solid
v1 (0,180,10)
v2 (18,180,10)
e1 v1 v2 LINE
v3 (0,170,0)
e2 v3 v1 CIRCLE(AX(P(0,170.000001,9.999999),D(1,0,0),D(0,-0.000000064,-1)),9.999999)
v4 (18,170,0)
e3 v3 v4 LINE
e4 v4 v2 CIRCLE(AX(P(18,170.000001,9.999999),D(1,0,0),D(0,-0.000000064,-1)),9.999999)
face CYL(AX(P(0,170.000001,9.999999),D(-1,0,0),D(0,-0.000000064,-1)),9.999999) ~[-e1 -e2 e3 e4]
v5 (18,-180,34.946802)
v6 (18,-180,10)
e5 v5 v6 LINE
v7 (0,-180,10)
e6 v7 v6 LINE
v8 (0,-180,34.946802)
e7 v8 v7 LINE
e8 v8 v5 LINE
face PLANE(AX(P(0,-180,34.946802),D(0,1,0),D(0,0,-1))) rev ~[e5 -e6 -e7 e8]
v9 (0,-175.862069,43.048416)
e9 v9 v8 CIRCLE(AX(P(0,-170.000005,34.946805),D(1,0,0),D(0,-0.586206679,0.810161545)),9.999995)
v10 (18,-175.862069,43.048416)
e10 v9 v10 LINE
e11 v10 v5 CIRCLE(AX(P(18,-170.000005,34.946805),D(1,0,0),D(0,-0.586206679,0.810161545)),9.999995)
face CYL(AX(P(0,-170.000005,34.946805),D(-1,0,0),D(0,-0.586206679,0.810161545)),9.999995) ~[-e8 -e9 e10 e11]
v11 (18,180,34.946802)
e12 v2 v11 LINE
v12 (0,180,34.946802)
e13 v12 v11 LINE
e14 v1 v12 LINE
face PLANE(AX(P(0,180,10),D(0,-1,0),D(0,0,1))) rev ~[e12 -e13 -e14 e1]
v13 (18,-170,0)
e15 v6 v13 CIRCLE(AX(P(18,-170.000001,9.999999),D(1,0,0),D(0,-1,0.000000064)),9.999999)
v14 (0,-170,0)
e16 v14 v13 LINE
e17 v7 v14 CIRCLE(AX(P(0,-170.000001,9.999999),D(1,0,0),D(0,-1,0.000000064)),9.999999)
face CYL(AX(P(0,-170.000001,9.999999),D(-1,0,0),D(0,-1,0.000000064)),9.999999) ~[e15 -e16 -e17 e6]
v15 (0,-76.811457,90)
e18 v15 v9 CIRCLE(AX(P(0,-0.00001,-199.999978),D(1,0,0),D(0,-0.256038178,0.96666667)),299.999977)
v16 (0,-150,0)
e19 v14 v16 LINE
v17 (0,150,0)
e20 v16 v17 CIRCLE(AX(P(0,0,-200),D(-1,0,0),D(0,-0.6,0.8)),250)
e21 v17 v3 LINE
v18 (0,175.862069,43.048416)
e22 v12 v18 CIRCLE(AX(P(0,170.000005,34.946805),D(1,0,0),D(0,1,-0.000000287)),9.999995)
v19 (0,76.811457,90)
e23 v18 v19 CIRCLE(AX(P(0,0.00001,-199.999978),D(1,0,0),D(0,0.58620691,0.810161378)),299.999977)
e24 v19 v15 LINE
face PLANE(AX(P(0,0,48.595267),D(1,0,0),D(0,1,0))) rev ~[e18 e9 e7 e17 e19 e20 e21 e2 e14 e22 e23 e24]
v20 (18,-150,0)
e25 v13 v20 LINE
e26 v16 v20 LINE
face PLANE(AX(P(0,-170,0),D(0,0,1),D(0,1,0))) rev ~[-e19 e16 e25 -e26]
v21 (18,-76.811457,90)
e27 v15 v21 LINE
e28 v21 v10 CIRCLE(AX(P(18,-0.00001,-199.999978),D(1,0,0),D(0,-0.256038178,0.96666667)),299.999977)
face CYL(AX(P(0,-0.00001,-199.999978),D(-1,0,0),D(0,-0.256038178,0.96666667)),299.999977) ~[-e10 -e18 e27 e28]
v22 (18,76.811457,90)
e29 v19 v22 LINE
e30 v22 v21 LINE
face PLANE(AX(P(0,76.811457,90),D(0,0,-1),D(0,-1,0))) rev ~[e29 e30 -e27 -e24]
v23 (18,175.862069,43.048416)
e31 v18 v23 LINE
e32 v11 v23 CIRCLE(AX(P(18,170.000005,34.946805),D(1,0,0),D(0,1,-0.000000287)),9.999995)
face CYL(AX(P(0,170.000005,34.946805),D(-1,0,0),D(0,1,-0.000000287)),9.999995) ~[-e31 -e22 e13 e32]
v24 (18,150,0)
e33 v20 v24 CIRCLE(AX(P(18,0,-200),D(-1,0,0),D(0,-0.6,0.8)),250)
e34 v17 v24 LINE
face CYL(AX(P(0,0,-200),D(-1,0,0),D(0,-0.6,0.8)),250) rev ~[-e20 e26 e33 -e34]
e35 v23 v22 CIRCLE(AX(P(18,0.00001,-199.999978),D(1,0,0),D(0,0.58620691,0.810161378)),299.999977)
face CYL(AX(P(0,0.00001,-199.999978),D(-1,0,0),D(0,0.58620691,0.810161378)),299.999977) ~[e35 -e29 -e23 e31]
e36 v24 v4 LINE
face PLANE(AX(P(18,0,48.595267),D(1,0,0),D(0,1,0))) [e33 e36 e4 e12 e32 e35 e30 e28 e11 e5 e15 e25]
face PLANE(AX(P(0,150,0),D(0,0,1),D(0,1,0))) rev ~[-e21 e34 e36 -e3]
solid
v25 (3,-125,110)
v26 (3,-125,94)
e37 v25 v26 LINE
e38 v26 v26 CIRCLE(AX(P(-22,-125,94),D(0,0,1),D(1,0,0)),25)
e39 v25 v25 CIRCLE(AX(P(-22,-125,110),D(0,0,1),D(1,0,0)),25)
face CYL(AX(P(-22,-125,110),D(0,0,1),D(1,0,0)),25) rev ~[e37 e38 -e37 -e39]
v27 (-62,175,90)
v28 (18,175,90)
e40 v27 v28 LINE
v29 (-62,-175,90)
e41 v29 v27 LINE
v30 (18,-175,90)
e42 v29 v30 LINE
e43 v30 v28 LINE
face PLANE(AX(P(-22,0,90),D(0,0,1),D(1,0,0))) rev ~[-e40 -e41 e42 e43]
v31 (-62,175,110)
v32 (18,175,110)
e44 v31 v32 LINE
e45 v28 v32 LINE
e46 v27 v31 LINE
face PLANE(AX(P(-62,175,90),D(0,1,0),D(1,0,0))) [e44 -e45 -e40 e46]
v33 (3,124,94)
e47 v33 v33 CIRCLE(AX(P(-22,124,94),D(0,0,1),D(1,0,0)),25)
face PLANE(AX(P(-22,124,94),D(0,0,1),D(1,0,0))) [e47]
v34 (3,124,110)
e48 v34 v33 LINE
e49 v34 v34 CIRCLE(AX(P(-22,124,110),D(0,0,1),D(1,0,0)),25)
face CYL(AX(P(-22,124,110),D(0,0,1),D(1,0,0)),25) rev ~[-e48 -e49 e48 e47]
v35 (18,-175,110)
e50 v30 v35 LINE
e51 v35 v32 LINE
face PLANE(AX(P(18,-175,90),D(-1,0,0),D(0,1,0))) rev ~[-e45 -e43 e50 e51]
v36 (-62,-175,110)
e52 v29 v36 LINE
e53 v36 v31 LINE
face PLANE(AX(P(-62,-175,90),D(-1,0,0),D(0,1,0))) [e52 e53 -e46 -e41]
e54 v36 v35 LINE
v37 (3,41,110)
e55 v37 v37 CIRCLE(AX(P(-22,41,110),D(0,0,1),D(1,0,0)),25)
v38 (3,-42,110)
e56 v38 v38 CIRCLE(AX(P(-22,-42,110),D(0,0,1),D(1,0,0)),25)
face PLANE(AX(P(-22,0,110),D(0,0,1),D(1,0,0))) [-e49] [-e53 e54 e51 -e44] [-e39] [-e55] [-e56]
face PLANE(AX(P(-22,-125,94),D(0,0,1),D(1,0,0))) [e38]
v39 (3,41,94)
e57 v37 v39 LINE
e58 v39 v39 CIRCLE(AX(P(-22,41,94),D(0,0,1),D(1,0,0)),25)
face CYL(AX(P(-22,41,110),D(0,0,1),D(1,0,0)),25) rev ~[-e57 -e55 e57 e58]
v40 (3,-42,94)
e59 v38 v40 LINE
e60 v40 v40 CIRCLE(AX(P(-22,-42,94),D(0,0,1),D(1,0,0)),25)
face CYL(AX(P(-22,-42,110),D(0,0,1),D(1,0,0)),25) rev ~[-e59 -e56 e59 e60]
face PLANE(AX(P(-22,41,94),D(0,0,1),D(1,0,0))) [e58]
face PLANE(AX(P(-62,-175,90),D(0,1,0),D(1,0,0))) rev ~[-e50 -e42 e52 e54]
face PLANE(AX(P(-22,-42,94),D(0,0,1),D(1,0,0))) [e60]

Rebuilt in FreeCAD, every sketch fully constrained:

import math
import FreeCAD as App
import Part
import Sketcher
from FreeCAD import Vector

doc = App.newDocument("Part")
body = doc.addObject("PartDesign::Body", "Body")

# Sketch on YZ plane
sketch1 = body.newObject("Sketcher::SketchObject", "Sketch")
sketch1.AttachmentSupport = (doc.getObject("YZ_Plane"), [""])
sketch1.MapMode = "FlatFace"
sketch1.addGeometry([
    Part.ArcOfCircle(Part.Circle(Vector(0, -200, 0), Vector(0, 0, 1), 250), math.radians(53.130102), math.radians(126.869898)),  # 0
    Part.LineSegment(Vector(150, 0, 0), Vector(170, 0, 0)),  # 1
    Part.ArcOfCircle(Part.Circle(Vector(170.000001, 9.999999, 0), Vector(0, 0, 1), 9.999999), math.radians(-90.000004), math.radians(0.000004)),  # 2
    Part.LineSegment(Vector(180, 10, 0), Vector(180, 34.946802, 0)),  # 3
    Part.ArcOfCircle(Part.Circle(Vector(170.000005, 34.946805, 0), Vector(0, 0, 1), 9.999995), math.radians(-0.000016), math.radians(54.111718)),  # 4
    Part.ArcOfCircle(Part.Circle(Vector(0.00001, -199.999978, 0), Vector(0, 0, 1), 299.999977), math.radians(54.111701), math.radians(75.164889)),  # 5
    Part.LineSegment(Vector(76.811457, 90, 0), Vector(-76.811457, 90, 0)),  # 6
    Part.ArcOfCircle(Part.Circle(Vector(-0.00001, -199.999978, 0), Vector(0, 0, 1), 299.999977), math.radians(104.835111), math.radians(125.888299)),  # 7
    Part.ArcOfCircle(Part.Circle(Vector(-170.000005, 34.946805, 0), Vector(0, 0, 1), 9.999995), math.radians(125.888282), math.radians(180.000016)),  # 8
    Part.LineSegment(Vector(-180, 34.946802, 0), Vector(-180, 10, 0)),  # 9
    Part.ArcOfCircle(Part.Circle(Vector(-170.000001, 9.999999, 0), Vector(0, 0, 1), 9.999999), math.radians(179.999996), math.radians(270.000004)),  # 10
    Part.LineSegment(Vector(-170, 0, 0), Vector(-150, 0, 0)),  # 11
], False)
sketch1.addConstraint([
    Sketcher.Constraint("Coincident", 0, 1, 1, 1),
    Sketcher.Constraint("Tangent", 1, 2, 2, 1),
    Sketcher.Constraint("Tangent", 2, 2, 3, 1),
    Sketcher.Constraint("Tangent", 3, 2, 4, 1),
    Sketcher.Constraint("Tangent", 4, 2, 5, 1),
    Sketcher.Constraint("Coincident", 5, 2, 6, 1),
    Sketcher.Constraint("Coincident", 6, 2, 7, 1),
    Sketcher.Constraint("Tangent", 7, 2, 8, 1),
    Sketcher.Constraint("Tangent", 8, 2, 9, 1),
    Sketcher.Constraint("Tangent", 9, 2, 10, 1),
    Sketcher.Constraint("Tangent", 10, 2, 11, 1),
    Sketcher.Constraint("Coincident", 11, 2, 0, 2),
    Sketcher.Constraint("Horizontal", 1),
    Sketcher.Constraint("Vertical", 3),
    Sketcher.Constraint("Horizontal", 6),
    Sketcher.Constraint("Vertical", 9),
    Sketcher.Constraint("Horizontal", 11),
    Sketcher.Constraint("Equal", 5, 7),
    Sketcher.Constraint("Equal", 4, 8),
    Sketcher.Constraint("Equal", 2, 10),
    Sketcher.Constraint("Symmetric", 1, 2, 10, 2, -1, 1),
    Sketcher.Constraint("Symmetric", 5, 3, 7, 3, -2),
    Sketcher.Constraint("Symmetric", 0, 1, 11, 2, -2),
    Sketcher.Constraint("Radius", 0, 250.0),
    Sketcher.Constraint("Radius", 2, 9.999999),
    Sketcher.Constraint("DistanceX", 1, 1, 1, 2, 20.0),
    Sketcher.Constraint("DistanceY", 0, 3, -1, 1, 200.0),
    Sketcher.Constraint("DistanceY", -1, 1, 5, 2, 90.0),
    Sketcher.Constraint("DistanceY", 3, 1, 3, 2, 24.946802),
    Sketcher.Constraint("Radius", 4, 9.999995),
    Sketcher.Constraint("Radius", 5, 299.999977),
    Sketcher.Constraint("DistanceX", 6, 2, 6, 1, 153.622914),
])
pad1 = body.newObject("PartDesign::Pad", "Pad")
pad1.Profile = sketch1
pad1.Length = 18
body2 = doc.addObject("PartDesign::Body", "Body001")

# Sketch on XY plane
sketch2 = body2.newObject("Sketcher::SketchObject", "Sketch001")
sketch2.AttachmentSupport = (doc.getObject("XY_Plane001"), [""])
sketch2.MapMode = "FlatFace"
sketch2.AttachmentOffset = App.Placement(Vector(0, 0, 90), App.Rotation())
sketch2.addGeometry([
    Part.LineSegment(Vector(-62, 175, 0), Vector(-62, -175, 0)),
    Part.LineSegment(Vector(-62, -175, 0), Vector(18, -175, 0)),
    Part.LineSegment(Vector(18, -175, 0), Vector(18, 175, 0)),
    Part.LineSegment(Vector(18, 175, 0), Vector(-62, 175, 0)),
], False)
sketch2.addConstraint([
    Sketcher.Constraint("Coincident", 0, 2, 1, 1),
    Sketcher.Constraint("Coincident", 1, 2, 2, 1),
    Sketcher.Constraint("Coincident", 2, 2, 3, 1),
    Sketcher.Constraint("Coincident", 3, 2, 0, 1),
    Sketcher.Constraint("Vertical", 0),
    Sketcher.Constraint("Horizontal", 1),
    Sketcher.Constraint("Vertical", 2),
    Sketcher.Constraint("Horizontal", 3),
    Sketcher.Constraint("DistanceX", 1, 1, 1, 2, 80.0),
    Sketcher.Constraint("DistanceY", 0, 2, 0, 1, 350.0),
    Sketcher.Constraint("DistanceX", 0, 2, -1, 1, 62.0),
    Sketcher.Constraint("DistanceY", 0, 2, -1, 1, 175.0),
])
pad2 = body2.newObject("PartDesign::Pad", "Pad001")
pad2.Profile = sketch2
pad2.Length = 20

# Sketch on XY plane
sketch3 = body2.newObject("Sketcher::SketchObject", "Sketch002")
sketch3.AttachmentSupport = (doc.getObject("XY_Plane001"), [""])
sketch3.MapMode = "FlatFace"
sketch3.AttachmentOffset = App.Placement(Vector(0, 0, 110), App.Rotation())
sketch3.addGeometry([
    Part.Circle(Vector(-22, -125, 0), Vector(0, 0, 1), 25),
    Part.Circle(Vector(-22, -42, 0), Vector(0, 0, 1), 25),
    Part.Circle(Vector(-22, 41, 0), Vector(0, 0, 1), 25),
    Part.Circle(Vector(-22, 124, 0), Vector(0, 0, 1), 25),
], False)
sketch3.addConstraint([
    Sketcher.Constraint("Equal", 0, 1),
    Sketcher.Constraint("Equal", 1, 2),
    Sketcher.Constraint("Equal", 2, 3),
    Sketcher.Constraint("Vertical", 0, 3, 1, 3),
    Sketcher.Constraint("Vertical", 1, 3, 2, 3),
    Sketcher.Constraint("Vertical", 2, 3, 3, 3),
    Sketcher.Constraint("Diameter", 0, 50.0),
    Sketcher.Constraint("DistanceX", 0, 3, -1, 1, 22.0),
    Sketcher.Constraint("DistanceY", 0, 3, -1, 1, 125.0),
    Sketcher.Constraint("DistanceY", 1, 3, -1, 1, 42.0),
    Sketcher.Constraint("DistanceY", -1, 1, 2, 3, 41.0),
    Sketcher.Constraint("DistanceY", -1, 1, 3, 3, 124.0),
])
pocket1 = body2.newObject("PartDesign::Pocket", "Pocket")
pocket1.Profile = sketch3
pocket1.Length = 16

doc.recompute()
